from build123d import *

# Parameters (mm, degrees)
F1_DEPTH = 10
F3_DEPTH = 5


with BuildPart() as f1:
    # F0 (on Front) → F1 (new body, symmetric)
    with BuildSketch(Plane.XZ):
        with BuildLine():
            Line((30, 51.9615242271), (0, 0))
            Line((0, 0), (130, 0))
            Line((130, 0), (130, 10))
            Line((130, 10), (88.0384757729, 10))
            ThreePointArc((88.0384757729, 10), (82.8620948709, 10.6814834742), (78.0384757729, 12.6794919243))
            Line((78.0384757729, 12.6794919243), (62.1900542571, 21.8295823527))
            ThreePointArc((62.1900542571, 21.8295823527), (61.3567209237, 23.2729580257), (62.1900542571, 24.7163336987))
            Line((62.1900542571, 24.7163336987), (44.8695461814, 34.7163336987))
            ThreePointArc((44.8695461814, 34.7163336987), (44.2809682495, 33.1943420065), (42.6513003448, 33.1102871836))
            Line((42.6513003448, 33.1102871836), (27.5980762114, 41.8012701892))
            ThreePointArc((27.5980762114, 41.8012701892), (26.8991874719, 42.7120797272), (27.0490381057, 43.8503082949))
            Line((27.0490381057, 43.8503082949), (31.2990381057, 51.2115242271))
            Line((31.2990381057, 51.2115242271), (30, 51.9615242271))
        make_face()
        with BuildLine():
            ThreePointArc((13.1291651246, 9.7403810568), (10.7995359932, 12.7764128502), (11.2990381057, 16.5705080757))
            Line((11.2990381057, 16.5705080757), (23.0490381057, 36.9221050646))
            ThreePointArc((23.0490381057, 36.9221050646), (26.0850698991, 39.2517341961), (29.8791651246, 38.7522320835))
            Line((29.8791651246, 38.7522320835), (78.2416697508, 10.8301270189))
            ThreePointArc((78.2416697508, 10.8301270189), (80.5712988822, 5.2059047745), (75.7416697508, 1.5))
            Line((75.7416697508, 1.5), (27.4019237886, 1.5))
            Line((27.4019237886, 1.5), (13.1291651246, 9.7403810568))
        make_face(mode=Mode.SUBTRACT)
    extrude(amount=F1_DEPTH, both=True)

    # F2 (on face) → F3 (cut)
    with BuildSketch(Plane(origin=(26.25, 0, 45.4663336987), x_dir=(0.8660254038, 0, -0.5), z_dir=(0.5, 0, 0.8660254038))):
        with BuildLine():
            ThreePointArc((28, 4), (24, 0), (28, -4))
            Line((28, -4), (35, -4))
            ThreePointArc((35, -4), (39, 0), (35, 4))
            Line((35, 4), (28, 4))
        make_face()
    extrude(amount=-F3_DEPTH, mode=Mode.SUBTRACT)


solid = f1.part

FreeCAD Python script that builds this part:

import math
import FreeCAD as App
import Part
import Sketcher

V = App.Vector
Q = App.Units.Quantity

doc = App.newDocument("Part")
body = doc.addObject("PartDesign::Body", "Body")

sketch1 = body.newObject("Sketcher::SketchObject", "Sketch")
sketch1.AttachmentSupport = (doc.getObject("XZ_Plane"), [""])
sketch1.MapMode = "FlatFace"
sketch1.addGeometry([
    Part.LineSegment(V(30, 51.961524, 0), V(0, 0, 0)),
    Part.LineSegment(V(0, 0, 0), V(130, 0, 0)),
    Part.LineSegment(V(130, 0, 0), V(130, 10, 0)),
    Part.LineSegment(V(130, 10, 0), V(88.038476, 10, 0)),
    Part.ArcOfCircle(Part.Circle(V(88.038476, 30, 0), V(0, 0, 1), 20), math.radians(-120), math.radians(-90)),
    Part.LineSegment(V(78.038476, 12.679492, 0), V(62.190054, 21.829582, 0)),
    Part.ArcOfCircle(Part.Circle(V(63.023388, 23.272958, 0), V(0, 0, 1), 1.666667), math.radians(120), math.radians(240)),
    Part.LineSegment(V(62.190054, 24.716334, 0), V(44.869546, 34.716334, 0)),
    Part.ArcOfCircle(Part.Circle(V(43.4013, 34.409325, 0), V(0, 0, 1), 1.5), math.radians(-120), math.radians(11.810315)),
    Part.LineSegment(V(42.6513, 33.110287, 0), V(27.598076, 41.80127, 0)),
    Part.ArcOfCircle(Part.Circle(V(28.348076, 43.100308, 0), V(0, 0, 1), 1.5), math.radians(150), math.radians(240)),
    Part.LineSegment(V(27.049038, 43.850308, 0), V(31.299038, 51.211524, 0)),
    Part.LineSegment(V(31.299038, 51.211524, 0), V(30, 51.961524, 0)),
    Part.LineSegment(V(27.401924, 1.5, 0), V(13.129165, 9.740381, 0)),
    Part.ArcOfCircle(Part.Circle(V(15.629165, 14.070508, 0), V(0, 0, 1), 5), math.radians(150), math.radians(240)),
    Part.LineSegment(V(11.299038, 16.570508, 0), V(23.049038, 36.922105, 0)),
    Part.ArcOfCircle(Part.Circle(V(27.379165, 34.422105, 0), V(0, 0, 1), 5), math.radians(60), math.radians(150)),
    Part.LineSegment(V(29.879165, 38.752232, 0), V(78.24167, 10.830127, 0)),
    Part.ArcOfCircle(Part.Circle(V(75.74167, 6.5, 0), V(0, 0, 1), 5), math.radians(-90), math.radians(60)),
    Part.LineSegment(V(75.74167, 1.5, 0), V(27.401924, 1.5, 0)),
], False)
sketch1.addConstraint([
    Sketcher.Constraint("Coincident", 0, 2, 1, 1),
    Sketcher.Constraint("Coincident", 1, 2, 2, 1),
    Sketcher.Constraint("Coincident", 2, 2, 3, 1),
    Sketcher.Constraint("Tangent", 3, 2, 4, 2),
    Sketcher.Constraint("Tangent", 4, 1, 5, 1),
    Sketcher.Constraint("Tangent", 5, 2, 6, 2),
    Sketcher.Constraint("Coincident", 6, 1, 7, 1),
    Sketcher.Constraint("Coincident", 7, 2, 8, 2),
    Sketcher.Constraint("Tangent", 8, 1, 9, 1),
    Sketcher.Constraint("Tangent", 9, 2, 10, 2),
    Sketcher.Constraint("Tangent", 10, 1, 11, 1),
    Sketcher.Constraint("Coincident", 11, 2, 12, 1),
    Sketcher.Constraint("Coincident", 12, 2, 0, 1),
    Sketcher.Constraint("Tangent", 13, 2, 14, 2),
    Sketcher.Constraint("Tangent", 14, 1, 15, 1),
    Sketcher.Constraint("Tangent", 15, 2, 16, 2),
    Sketcher.Constraint("Tangent", 16, 1, 17, 1),
    Sketcher.Constraint("Tangent", 17, 2, 18, 2),
    Sketcher.Constraint("Tangent", 18, 1, 19, 1),
    Sketcher.Constraint("Coincident", 19, 2, 13, 1),
    Sketcher.Constraint("Horizontal", 1),
    Sketcher.Constraint("Vertical", 2),
    Sketcher.Constraint("Horizontal", 3),
    Sketcher.Constraint("Horizontal", 19),
    Sketcher.Constraint("Coincident", 0, 2, -1, 1),
    Sketcher.Constraint("Equal", 8, 10),
    Sketcher.Constraint("Equal", 14, 16),
    Sketcher.Constraint("Equal", 16, 18),
    Sketcher.Constraint("Perpendicular", 0, 5),
    Sketcher.Constraint("Parallel", 5, 7),
    Sketcher.Constraint("Parallel", 7, 9),
    Sketcher.Constraint("Perpendicular", 9, 11),
    Sketcher.Constraint("Perpendicular", 11, 12),
    Sketcher.Constraint("Parallel", 12, 13),
    Sketcher.Constraint("Perpendicular", 13, 15),
    Sketcher.Constraint("Perpendicular", 15, 17),
    Sketcher.Constraint("Vertical", 5, 2, 6, 1),
    Sketcher.Constraint("Radius", 4, Q("20 mm")),
    Sketcher.Constraint("Radius", 14, Q("5 mm")),
    Sketcher.Constraint("Radius", 8, Q("1.5 mm")),
    Sketcher.Constraint("DistanceX", 1, 1, 1, 2, Q("130 mm")),
    Sketcher.Constraint("DistanceY", 2, 1, 2, 2, Q("10 mm")),
    Sketcher.Constraint("Angle", 0, Q("-120 deg")),
    Sketcher.Constraint("Distance", 0, Q("60 mm")),
    Sketcher.Constraint("Distance", 7, Q("20 mm")),
    Sketcher.Constraint("DistanceX", 15, 2, 10, 1, Q("4 mm")),
    Sketcher.Constraint("Distance", 11, Q("8.5 mm")),
    Sketcher.Constraint("Distance", 12, Q("1.5 mm")),
    Sketcher.Constraint("Distance", 15, Q("23.5 mm")),
    Sketcher.Constraint("DistanceY", -1, 1, 18, 3, Q("6.5 mm")),
    Sketcher.Constraint("Radius", 6, Q("1.666667 mm")),
    Sketcher.Constraint("DistanceX", -1, 1, 8, 3, Q("43.4013 mm")),
    Sketcher.Constraint("DistanceX", 10, 3, 4, 3, Q("59.6904 mm")),
    Sketcher.Constraint("DistanceY", 14, 3, 10, 3, Q("29.0298 mm")),
])
pad1 = body.newObject("PartDesign::Pad", "Pad")
pad1.Profile = sketch1
pad1.Length = 20
pad1.Midplane = True

sketch2 = body.newObject("Sketcher::SketchObject", "Sketch001")
sketch2.Placement = App.Placement(V(26.25, 0, 45.466334), App.Rotation(V(0.866025404, 0, -0.5), V(0, 1, 0), V(0.5, 0, 0.866025404), "ZXY"))
sketch2.addGeometry([
    Part.ArcOfCircle(Part.Circle(V(28, 0, 0), V(0, 0, 1), 4), math.radians(90), math.radians(270)),
    Part.LineSegment(V(28, -4, 0), V(35, -4, 0)),
    Part.ArcOfCircle(Part.Circle(V(35, 0, 0), V(0, 0, 1), 4), math.radians(-90), math.radians(90)),
    Part.LineSegment(V(35, 4, 0), V(28, 4, 0)),
], False)
sketch2.addConstraint([
    Sketcher.Constraint("Tangent", 0, 2, 1, 1),
    Sketcher.Constraint("Tangent", 1, 2, 2, 1),
    Sketcher.Constraint("Tangent", 2, 2, 3, 1),
    Sketcher.Constraint("Tangent", 3, 2, 0, 1),
    Sketcher.Constraint("Horizontal", 1),
    Sketcher.Constraint("Horizontal", 3),
    Sketcher.Constraint("PointOnObject", 0, 3, -1),
    Sketcher.Constraint("Radius", 0, Q("4 mm")),
    Sketcher.Constraint("DistanceX", 1, 1, 1, 2, Q("7 mm")),
    Sketcher.Constraint("DistanceX", -1, 1, 0, 3, Q("28 mm")),
])
pocket1 = body.newObject("PartDesign::Pocket", "Pocket")
pocket1.Profile = sketch2
pocket1.Length = 5

doc.recompute()
